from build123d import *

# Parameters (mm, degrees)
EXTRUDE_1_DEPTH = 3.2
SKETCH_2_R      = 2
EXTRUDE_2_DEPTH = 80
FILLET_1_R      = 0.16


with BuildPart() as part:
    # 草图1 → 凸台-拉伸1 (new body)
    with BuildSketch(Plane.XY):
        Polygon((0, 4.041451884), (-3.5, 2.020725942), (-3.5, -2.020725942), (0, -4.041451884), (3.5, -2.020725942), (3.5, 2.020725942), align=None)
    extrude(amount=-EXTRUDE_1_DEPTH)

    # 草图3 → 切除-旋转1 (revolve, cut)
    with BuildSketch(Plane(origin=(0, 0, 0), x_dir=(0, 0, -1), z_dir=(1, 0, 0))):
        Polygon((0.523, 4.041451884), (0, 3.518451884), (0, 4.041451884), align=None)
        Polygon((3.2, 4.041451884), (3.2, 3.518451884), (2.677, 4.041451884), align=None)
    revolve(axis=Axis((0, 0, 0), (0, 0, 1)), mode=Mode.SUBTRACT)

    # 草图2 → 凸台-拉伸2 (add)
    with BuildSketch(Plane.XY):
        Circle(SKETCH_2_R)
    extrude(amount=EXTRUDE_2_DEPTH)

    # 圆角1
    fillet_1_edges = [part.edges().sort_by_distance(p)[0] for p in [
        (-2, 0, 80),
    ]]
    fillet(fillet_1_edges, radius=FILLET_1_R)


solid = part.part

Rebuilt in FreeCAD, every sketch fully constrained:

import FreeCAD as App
import Part
import Sketcher
from FreeCAD import Vector
Q = App.Units.Quantity


def edges_at(feature, points):
    """Names of the edges that pass closest to the given points."""
    edges = feature.Shape.Edges
    near = lambda p: min(range(len(edges)), key=lambda i: edges[i].distToShape(Part.Vertex(*p))[0])
    return sorted({f"Edge{near(p) + 1}" for p in points})

doc = App.newDocument("Part")
params = doc.addObject("Spreadsheet::Sheet", "Params")
for row, (alias, value) in enumerate([
    ("pad1_length", "3.2 mm"),
    ("groove_angle", "360 deg"),
    ("sketch3_diameter", "4 mm"),
    ("pad2_length", "80 mm"),
    ("fillet_radius", "0.16 mm"),
], start=1):
    params.set(f"A{row}", alias)
    params.set(f"B{row}", "=" + value)
    params.setAlias(f"B{row}", alias)

body = doc.addObject("PartDesign::Body", "Body")

sketch1 = body.newObject("Sketcher::SketchObject", "Sketch")
sketch1.AttachmentSupport = (doc.getObject("XY_Plane"), [""])
sketch1.MapMode = "FlatFace"
sketch1.addGeometry(Part.LineSegment(Vector(0, 4.041452, 0), Vector(-3.5, 2.020726, 0)), False)
sketch1.addGeometry(Part.LineSegment(Vector(-3.5, 2.020726, 0), Vector(-3.5, -2.020726, 0)), False)
sketch1.addGeometry(Part.LineSegment(Vector(-3.5, -2.020726, 0), Vector(0, -4.041452, 0)), False)
sketch1.addGeometry(Part.LineSegment(Vector(0, -4.041452, 0), Vector(3.5, -2.020726, 0)), False)
sketch1.addGeometry(Part.LineSegment(Vector(3.5, -2.020726, 0), Vector(3.5, 2.020726, 0)), False)
sketch1.addGeometry(Part.LineSegment(Vector(3.5, 2.020726, 0), Vector(0, 4.041452, 0)), False)
sketch1.addConstraint(Sketcher.Constraint("Coincident", 0, 2, 1, 1))
sketch1.addConstraint(Sketcher.Constraint("Coincident", 1, 2, 2, 1))
sketch1.addConstraint(Sketcher.Constraint("Coincident", 2, 2, 3, 1))
sketch1.addConstraint(Sketcher.Constraint("Coincident", 3, 2, 4, 1))
sketch1.addConstraint(Sketcher.Constraint("Coincident", 4, 2, 5, 1))
sketch1.addConstraint(Sketcher.Constraint("Coincident", 5, 2, 0, 1))
sketch1.addConstraint(Sketcher.Constraint("Vertical", 1))
sketch1.addConstraint(Sketcher.Constraint("Vertical", 4))
sketch1.addConstraint(Sketcher.Constraint("Symmetric", 0, 2, 3, 2, -1, 1))
sketch1.addConstraint(Sketcher.Constraint("Symmetric", 2, 2, 5, 2, -1, 1))
sketch1.addConstraint(Sketcher.Constraint("PointOnObject", 2, 2, -2))
sketch1.addConstraint(Sketcher.Constraint("Parallel", 2, 5))
sketch1.addConstraint(Sketcher.Constraint("Horizontal", 1, 2, 3, 2))
sketch1.addConstraint(Sketcher.Constraint("Angle", 0, Q("-150 deg")))
sketch1.addConstraint(Sketcher.Constraint("DistanceX", 1, 2, 3, 2, 7.0))
sketch1.addConstraint(Sketcher.Constraint("DistanceY", 1, 2, 1, 1, 4.041452))
pad1 = body.newObject("PartDesign::Pad", "Pad")
pad1.Profile = sketch1
pad1.setExpression("Length", "Params.pad1_length")
pad1.Reversed = True

sketch2 = body.newObject("Sketcher::SketchObject", "Sketch001")
sketch2.AttachmentSupport = (doc.getObject("YZ_Plane"), [""])
sketch2.MapMode = "FlatFace"
sketch2.addGeometry(Part.LineSegment(Vector(3.518452, 0, 0), Vector(4.041452, -0.523, 0)), False)
sketch2.addGeometry(Part.LineSegment(Vector(4.041452, -0.523, 0), Vector(4.041452, 0, 0)), False)
sketch2.addGeometry(Part.LineSegment(Vector(4.041452, 0, 0), Vector(3.518452, 0, 0)), False)
sketch2.addGeometry(Part.LineSegment(Vector(3.518452, -3.2, 0), Vector(4.041452, -3.2, 0)), False)
sketch2.addGeometry(Part.LineSegment(Vector(4.041452, -3.2, 0), Vector(4.041452, -2.677, 0)), False)
sketch2.addGeometry(Part.LineSegment(Vector(4.041452, -2.677, 0), Vector(3.518452, -3.2, 0)), False)
sketch2.addConstraint(Sketcher.Constraint("Coincident", 0, 2, 1, 1))
sketch2.addConstraint(Sketcher.Constraint("Coincident", 1, 2, 2, 1))
sketch2.addConstraint(Sketcher.Constraint("Coincident", 2, 2, 0, 1))
sketch2.addConstraint(Sketcher.Constraint("Coincident", 3, 2, 4, 1))
sketch2.addConstraint(Sketcher.Constraint("Coincident", 4, 2, 5, 1))
sketch2.addConstraint(Sketcher.Constraint("Coincident", 5, 2, 3, 1))
sketch2.addConstraint(Sketcher.Constraint("Vertical", 1))
sketch2.addConstraint(Sketcher.Constraint("Horizontal", 2))
sketch2.addConstraint(Sketcher.Constraint("Horizontal", 3))
sketch2.addConstraint(Sketcher.Constraint("Vertical", 4))
sketch2.addConstraint(Sketcher.Constraint("PointOnObject", 1, 2, -1))
sketch2.addConstraint(Sketcher.Constraint("Perpendicular", 0, 5))
sketch2.addConstraint(Sketcher.Constraint("Vertical", 1, 2, 3, 2))
sketch2.addConstraint(Sketcher.Constraint("Vertical", 2, 2, 5, 2))
sketch2.addConstraint(Sketcher.Constraint("Equal", 3, 1))
sketch2.addConstraint(Sketcher.Constraint("DistanceY", 3, 2, -1, 1, 3.2))
sketch2.addConstraint(Sketcher.Constraint("DistanceX", 2, 2, 2, 1, 0.523))
sketch2.addConstraint(Sketcher.Constraint("DistanceX", -1, 1, 0, 2, 4.041452))
groove = body.newObject("PartDesign::Groove", "Groove")
groove.Profile = sketch2
groove.ReferenceAxis = (sketch2, ["V_Axis"])
groove.setExpression("Angle", "Params.groove_angle")

sketch3 = body.newObject("Sketcher::SketchObject", "Sketch002")
sketch3.AttachmentSupport = (doc.getObject("XY_Plane"), [""])
sketch3.MapMode = "FlatFace"
sketch3.addGeometry(Part.Circle(Vector(0, 0, 0), Vector(0, 0, 1), 2), False)
sketch3.addConstraint(Sketcher.Constraint("Coincident", 0, 3, -1, 1))
sketch3.addConstraint(Sketcher.Constraint("Diameter", 0, 4.0))
sketch3.setExpression("Constraints[1]", "Params.sketch3_diameter")
pad2 = body.newObject("PartDesign::Pad", "Pad001")
pad2.Profile = sketch3
pad2.setExpression("Length", "Params.pad2_length")
doc.recompute()

fillet = body.newObject("PartDesign::Fillet", "Fillet")
fillet.Base = (pad2, edges_at(pad2, [(-2, 0, 80)]))
fillet.setExpression("Radius", "Params.fillet_radius")

doc.recompute()
